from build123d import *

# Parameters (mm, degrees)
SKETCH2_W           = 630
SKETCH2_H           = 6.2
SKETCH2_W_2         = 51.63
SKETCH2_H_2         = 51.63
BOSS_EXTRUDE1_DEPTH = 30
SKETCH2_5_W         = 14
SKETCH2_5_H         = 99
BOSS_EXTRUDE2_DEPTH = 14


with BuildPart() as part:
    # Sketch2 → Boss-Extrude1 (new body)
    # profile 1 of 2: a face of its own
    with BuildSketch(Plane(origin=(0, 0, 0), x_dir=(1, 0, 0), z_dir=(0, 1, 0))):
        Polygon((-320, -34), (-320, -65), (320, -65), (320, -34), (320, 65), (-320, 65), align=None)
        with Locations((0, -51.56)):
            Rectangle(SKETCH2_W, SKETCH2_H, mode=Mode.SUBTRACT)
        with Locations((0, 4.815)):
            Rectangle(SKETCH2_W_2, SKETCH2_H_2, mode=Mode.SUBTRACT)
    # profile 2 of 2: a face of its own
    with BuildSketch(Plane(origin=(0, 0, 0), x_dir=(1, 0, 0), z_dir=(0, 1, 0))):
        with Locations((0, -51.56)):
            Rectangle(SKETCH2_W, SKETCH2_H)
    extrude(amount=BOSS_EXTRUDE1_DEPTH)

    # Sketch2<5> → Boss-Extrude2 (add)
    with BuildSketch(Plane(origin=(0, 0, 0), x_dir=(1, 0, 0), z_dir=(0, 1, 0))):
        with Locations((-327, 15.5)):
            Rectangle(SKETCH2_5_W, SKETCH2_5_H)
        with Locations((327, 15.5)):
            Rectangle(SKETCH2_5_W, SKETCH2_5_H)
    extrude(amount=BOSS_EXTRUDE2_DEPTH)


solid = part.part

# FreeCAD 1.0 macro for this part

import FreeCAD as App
import Part
import Sketcher


def add_polygon(sketch, points):
    """Adds a closed chain of lines whose ends are joined by coincident constraints."""
    first, n = sketch.GeometryCount, len(points)
    for a, b in zip(points, points[1:] + points[:1]):
        sketch.addGeometry(Part.LineSegment(App.Vector(*a, 0), App.Vector(*b, 0)), False)
    for i in range(n):
        sketch.addConstraint(Sketcher.Constraint("Coincident", first + i, 2, first + (i + 1) % n, 1))

doc = App.newDocument("Part")
body = doc.addObject("PartDesign::Body", "Body")

sketch1 = body.newObject("Sketcher::SketchObject", "Sketch")
sketch1.AttachmentSupport = (doc.getObject("XZ_Plane"), [""])
sketch1.MapMode = "FlatFace"
add_polygon(sketch1, [(-320, 65), (320, 65), (320, -65), (-320, -65)])
add_polygon(sketch1, [(26, 21), (-26, 21), (-26, -31), (26, -31)])
sketch1.addConstraint(Sketcher.Constraint("Horizontal", 0))
sketch1.addConstraint(Sketcher.Constraint("Vertical", 1))
sketch1.addConstraint(Sketcher.Constraint("Horizontal", 2))
sketch1.addConstraint(Sketcher.Constraint("Vertical", 3))
sketch1.addConstraint(Sketcher.Constraint("Horizontal", 4))
sketch1.addConstraint(Sketcher.Constraint("Vertical", 5))
sketch1.addConstraint(Sketcher.Constraint("Horizontal", 6))
sketch1.addConstraint(Sketcher.Constraint("Vertical", 7))
sketch1.addConstraint(Sketcher.Constraint("Symmetric", 0, 2, 2, 2, -1, 1))
sketch1.addConstraint(Sketcher.Constraint("Equal", 6, 5))
sketch1.addConstraint(Sketcher.Constraint("DistanceX", 0, 1, 0, 2, 640.0))
sketch1.addConstraint(Sketcher.Constraint("DistanceY", 1, 2, 1, 1, 130.0))
sketch1.addConstraint(Sketcher.Constraint("DistanceY", -1, 1, 4, 2, 21.0))
sketch1.addConstraint(Sketcher.Constraint("DistanceX", 4, 2, 4, 1, 51.63))
sketch1.addConstraint(Sketcher.Constraint("DistanceX", 4, 2, -1, 1, 25.815))
pad1 = body.newObject("PartDesign::Pad", "Pad")
pad1.Profile = sketch1
pad1.Length = 30
pad1.Reversed = True

sketch2 = body.newObject("Sketcher::SketchObject", "Sketch001")
sketch2.AttachmentSupport = (doc.getObject("XZ_Plane"), [""])
sketch2.MapMode = "FlatFace"
add_polygon(sketch2, [(-334, -65), (-334, 34), (-320, 34), (-320, -65)])
add_polygon(sketch2, [(320, -65), (320, 34), (334, 34), (334, -65)])
sketch2.addConstraint(Sketcher.Constraint("Vertical", 0))
sketch2.addConstraint(Sketcher.Constraint("Horizontal", 1))
sketch2.addConstraint(Sketcher.Constraint("Vertical", 2))
sketch2.addConstraint(Sketcher.Constraint("Horizontal", 3))
sketch2.addConstraint(Sketcher.Constraint("Vertical", 4))
sketch2.addConstraint(Sketcher.Constraint("Horizontal", 5))
sketch2.addConstraint(Sketcher.Constraint("Vertical", 6))
sketch2.addConstraint(Sketcher.Constraint("Horizontal", 7))
sketch2.addConstraint(Sketcher.Constraint("Symmetric", 1, 2, 4, 2, -2))
sketch2.addConstraint(Sketcher.Constraint("Symmetric", 3, 2, 6, 2, -2))
sketch2.addConstraint(Sketcher.Constraint("DistanceX", 1, 1, 1, 2, 14.0))
sketch2.addConstraint(Sketcher.Constraint("DistanceY", 0, 1, 0, 2, 99.0))
sketch2.addConstraint(Sketcher.Constraint("DistanceX", 0, 2, -1, 1, 334.0))
sketch2.addConstraint(Sketcher.Constraint("DistanceY", -1, 1, 0, 2, 34.0))
pad2 = body.newObject("PartDesign::Pad", "Pad001")
pad2.Profile = sketch2
pad2.Length = 14
pad2.Reversed = True

doc.recompute()
